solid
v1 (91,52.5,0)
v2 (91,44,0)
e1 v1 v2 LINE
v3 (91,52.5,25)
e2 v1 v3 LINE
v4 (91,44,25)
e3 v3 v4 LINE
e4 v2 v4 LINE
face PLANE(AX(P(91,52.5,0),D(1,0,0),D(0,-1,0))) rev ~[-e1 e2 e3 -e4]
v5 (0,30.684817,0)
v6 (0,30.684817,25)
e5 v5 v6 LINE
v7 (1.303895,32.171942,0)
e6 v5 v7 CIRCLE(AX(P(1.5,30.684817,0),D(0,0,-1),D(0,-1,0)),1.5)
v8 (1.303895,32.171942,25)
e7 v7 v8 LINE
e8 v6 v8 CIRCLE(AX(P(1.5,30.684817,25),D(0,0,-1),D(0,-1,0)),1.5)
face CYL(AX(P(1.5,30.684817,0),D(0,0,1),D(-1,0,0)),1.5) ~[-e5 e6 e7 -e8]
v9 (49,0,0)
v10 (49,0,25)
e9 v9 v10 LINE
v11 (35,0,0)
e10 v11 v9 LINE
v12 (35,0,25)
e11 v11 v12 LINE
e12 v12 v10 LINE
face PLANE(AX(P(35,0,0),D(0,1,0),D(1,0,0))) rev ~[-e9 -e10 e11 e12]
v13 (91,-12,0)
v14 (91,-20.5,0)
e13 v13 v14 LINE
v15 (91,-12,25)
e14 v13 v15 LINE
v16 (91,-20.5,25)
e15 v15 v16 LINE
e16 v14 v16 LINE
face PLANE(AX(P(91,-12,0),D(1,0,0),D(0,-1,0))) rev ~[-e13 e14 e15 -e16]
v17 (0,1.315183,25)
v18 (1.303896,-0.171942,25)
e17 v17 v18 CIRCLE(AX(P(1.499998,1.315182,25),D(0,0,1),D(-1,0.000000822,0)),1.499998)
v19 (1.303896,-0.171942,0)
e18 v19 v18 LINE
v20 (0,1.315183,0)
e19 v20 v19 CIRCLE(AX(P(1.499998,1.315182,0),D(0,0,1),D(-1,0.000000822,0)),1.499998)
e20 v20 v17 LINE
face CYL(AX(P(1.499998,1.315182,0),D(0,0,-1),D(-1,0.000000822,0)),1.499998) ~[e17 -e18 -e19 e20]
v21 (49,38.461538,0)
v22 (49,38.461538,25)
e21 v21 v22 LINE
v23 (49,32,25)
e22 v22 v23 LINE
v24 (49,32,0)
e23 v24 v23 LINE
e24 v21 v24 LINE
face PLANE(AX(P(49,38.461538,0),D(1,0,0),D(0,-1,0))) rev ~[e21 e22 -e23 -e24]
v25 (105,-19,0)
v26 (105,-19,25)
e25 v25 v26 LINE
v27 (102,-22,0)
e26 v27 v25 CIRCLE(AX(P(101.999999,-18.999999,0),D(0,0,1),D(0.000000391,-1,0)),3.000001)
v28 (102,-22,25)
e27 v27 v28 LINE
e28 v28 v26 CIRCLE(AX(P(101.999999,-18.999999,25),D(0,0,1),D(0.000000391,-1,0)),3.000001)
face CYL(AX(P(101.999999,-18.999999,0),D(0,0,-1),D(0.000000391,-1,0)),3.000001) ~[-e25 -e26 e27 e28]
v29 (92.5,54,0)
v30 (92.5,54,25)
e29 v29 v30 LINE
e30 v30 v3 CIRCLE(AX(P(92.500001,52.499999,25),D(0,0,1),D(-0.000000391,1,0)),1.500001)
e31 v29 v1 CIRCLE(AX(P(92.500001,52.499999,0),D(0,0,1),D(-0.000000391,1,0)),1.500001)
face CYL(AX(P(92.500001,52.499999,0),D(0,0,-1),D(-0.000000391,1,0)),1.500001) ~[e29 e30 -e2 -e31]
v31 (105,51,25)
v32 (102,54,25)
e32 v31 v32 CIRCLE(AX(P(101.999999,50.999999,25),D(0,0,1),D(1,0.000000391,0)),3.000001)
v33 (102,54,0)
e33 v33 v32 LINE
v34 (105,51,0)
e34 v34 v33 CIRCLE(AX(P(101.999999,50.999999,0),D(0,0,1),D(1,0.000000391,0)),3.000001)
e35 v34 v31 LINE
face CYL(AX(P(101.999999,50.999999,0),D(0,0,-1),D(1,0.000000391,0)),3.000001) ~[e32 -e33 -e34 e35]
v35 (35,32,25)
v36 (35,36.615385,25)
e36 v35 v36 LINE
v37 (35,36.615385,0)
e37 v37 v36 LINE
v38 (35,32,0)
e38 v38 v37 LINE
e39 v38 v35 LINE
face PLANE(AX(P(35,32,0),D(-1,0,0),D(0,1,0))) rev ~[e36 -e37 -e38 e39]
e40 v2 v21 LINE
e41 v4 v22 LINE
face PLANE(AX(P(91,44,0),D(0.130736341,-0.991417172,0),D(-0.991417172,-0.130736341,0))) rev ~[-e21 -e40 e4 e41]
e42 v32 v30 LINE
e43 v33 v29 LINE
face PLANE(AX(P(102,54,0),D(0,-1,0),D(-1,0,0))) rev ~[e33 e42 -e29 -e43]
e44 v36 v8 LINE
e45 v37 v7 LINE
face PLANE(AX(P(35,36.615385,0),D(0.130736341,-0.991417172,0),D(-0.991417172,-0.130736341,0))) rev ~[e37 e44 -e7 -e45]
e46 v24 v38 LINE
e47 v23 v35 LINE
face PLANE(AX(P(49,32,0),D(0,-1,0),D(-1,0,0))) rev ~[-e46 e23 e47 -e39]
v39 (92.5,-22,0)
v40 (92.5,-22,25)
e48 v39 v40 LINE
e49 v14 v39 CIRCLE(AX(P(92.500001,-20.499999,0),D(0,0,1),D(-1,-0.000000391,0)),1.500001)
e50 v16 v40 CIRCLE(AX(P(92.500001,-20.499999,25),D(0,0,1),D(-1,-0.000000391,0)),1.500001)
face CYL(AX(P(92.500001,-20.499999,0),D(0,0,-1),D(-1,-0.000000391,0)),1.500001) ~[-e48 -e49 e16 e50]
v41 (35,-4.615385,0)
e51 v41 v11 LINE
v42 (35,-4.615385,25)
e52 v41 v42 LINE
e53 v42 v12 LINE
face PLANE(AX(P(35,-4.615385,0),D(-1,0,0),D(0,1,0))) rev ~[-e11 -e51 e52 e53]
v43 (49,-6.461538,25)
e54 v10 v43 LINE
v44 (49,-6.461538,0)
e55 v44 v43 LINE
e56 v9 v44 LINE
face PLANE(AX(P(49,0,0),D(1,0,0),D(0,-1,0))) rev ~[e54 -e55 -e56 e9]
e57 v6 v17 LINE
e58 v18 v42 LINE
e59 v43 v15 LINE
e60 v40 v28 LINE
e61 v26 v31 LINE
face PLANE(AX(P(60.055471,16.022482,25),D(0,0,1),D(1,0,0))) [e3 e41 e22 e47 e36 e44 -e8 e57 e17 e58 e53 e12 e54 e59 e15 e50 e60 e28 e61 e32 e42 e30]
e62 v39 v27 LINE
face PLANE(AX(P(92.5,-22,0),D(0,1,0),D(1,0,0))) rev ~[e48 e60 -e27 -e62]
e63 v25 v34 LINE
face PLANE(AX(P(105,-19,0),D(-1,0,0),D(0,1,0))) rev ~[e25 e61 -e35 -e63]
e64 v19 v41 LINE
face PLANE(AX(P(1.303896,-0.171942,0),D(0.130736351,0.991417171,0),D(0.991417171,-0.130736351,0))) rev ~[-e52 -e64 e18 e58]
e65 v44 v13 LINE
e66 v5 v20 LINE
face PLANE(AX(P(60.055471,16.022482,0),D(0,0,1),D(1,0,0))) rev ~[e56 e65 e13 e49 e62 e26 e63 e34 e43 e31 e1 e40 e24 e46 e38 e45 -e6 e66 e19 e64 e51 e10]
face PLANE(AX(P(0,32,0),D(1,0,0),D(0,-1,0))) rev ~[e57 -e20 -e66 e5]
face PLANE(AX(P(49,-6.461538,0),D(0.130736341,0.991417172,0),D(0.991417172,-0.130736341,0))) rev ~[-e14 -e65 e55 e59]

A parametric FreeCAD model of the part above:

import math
import FreeCAD as App
import Part
import Sketcher
Q = App.Units.Quantity


def edges_at(feature, points):
    """Names of the edges that pass closest to the given points."""
    edges = feature.Shape.Edges
    near = lambda p: min(range(len(edges)), key=lambda i: edges[i].distToShape(Part.Vertex(*p))[0])
    return sorted({f"Edge{near(p) + 1}" for p in points})

doc = App.newDocument("Part")
body = doc.addObject("PartDesign::Body", "Body")

sketch1 = body.newObject("Sketcher::SketchObject", "Sketch")
sketch1.AttachmentSupport = (doc.getObject("XY_Plane"), [""])
sketch1.MapMode = "FlatFace"
sketch1.addGeometry(Part.LineSegment(App.Vector(0, 32, 0), App.Vector(0, 1.3, 0)), False)
sketch1.addGeometry(Part.ArcOfCircle(Part.Circle(App.Vector(1.5, 1.3, 0), App.Vector(0, 0, 1), 1.5), math.radians(180), math.radians(262)), False)
sketch1.addGeometry(Part.LineSegment(App.Vector(1.3, -0.2, 0), App.Vector(35, -4.6, 0)), False)
sketch1.addGeometry(Part.LineSegment(App.Vector(35, -4.6, 0), App.Vector(35, 0, 0)), False)
sketch1.addGeometry(Part.LineSegment(App.Vector(35, 0, 0), App.Vector(49, 0, 0)), False)
sketch1.addGeometry(Part.LineSegment(App.Vector(49, 0, 0), App.Vector(49, -6.5, 0)), False)
sketch1.addGeometry(Part.LineSegment(App.Vector(49, -6.5, 0), App.Vector(91, -12, 0)), False)
sketch1.addGeometry(Part.LineSegment(App.Vector(91, -12, 0), App.Vector(91, -20.5, 0)), False)
sketch1.addGeometry(Part.ArcOfCircle(Part.Circle(App.Vector(92.5, -20.5, 0), App.Vector(0, 0, 1), 1.5), math.radians(-180), math.radians(-90)), False)
sketch1.addGeometry(Part.LineSegment(App.Vector(92.5, -22, 0), App.Vector(102, -22, 0)), False)
sketch1.addGeometry(Part.ArcOfCircle(Part.Circle(App.Vector(102, -19, 0), App.Vector(0, 0, 1), 3), math.radians(-90), math.radians(0)), False)
sketch1.addGeometry(Part.LineSegment(App.Vector(105, -19, 0), App.Vector(105, 51, 0)), False)
sketch1.addGeometry(Part.ArcOfCircle(Part.Circle(App.Vector(102, 51, 0), App.Vector(0, 0, 1), 3), math.radians(0), math.radians(90)), False)
sketch1.addGeometry(Part.LineSegment(App.Vector(102, 54, 0), App.Vector(92.5, 54, 0)), False)
sketch1.addGeometry(Part.ArcOfCircle(Part.Circle(App.Vector(92.5, 52.5, 0), App.Vector(0, 0, 1), 1.5), math.radians(90), math.radians(180)), False)
sketch1.addGeometry(Part.LineSegment(App.Vector(91, 52.5, 0), App.Vector(91, 44, 0)), False)
sketch1.addGeometry(Part.LineSegment(App.Vector(91, 44, 0), App.Vector(49, 38.5, 0)), False)
sketch1.addGeometry(Part.LineSegment(App.Vector(49, 38.5, 0), App.Vector(49, 32, 0)), False)
sketch1.addGeometry(Part.LineSegment(App.Vector(49, 32, 0), App.Vector(35, 32, 0)), False)
sketch1.addGeometry(Part.LineSegment(App.Vector(35, 32, 0), App.Vector(35, 36.6, 0)), False)
sketch1.addGeometry(Part.LineSegment(App.Vector(35, 36.6, 0), App.Vector(0, 32, 0)), False)
sketch1.addConstraint(Sketcher.Constraint("Tangent", 0, 2, 1, 1))
sketch1.addConstraint(Sketcher.Constraint("Tangent", 1, 2, 2, 1))
sketch1.addConstraint(Sketcher.Constraint("Coincident", 2, 2, 3, 1))
sketch1.addConstraint(Sketcher.Constraint("Coincident", 3, 2, 4, 1))
sketch1.addConstraint(Sketcher.Constraint("Coincident", 4, 2, 5, 1))
sketch1.addConstraint(Sketcher.Constraint("Coincident", 5, 2, 6, 1))
sketch1.addConstraint(Sketcher.Constraint("Coincident", 6, 2, 7, 1))
sketch1.addConstraint(Sketcher.Constraint("Tangent", 7, 2, 8, 1))
sketch1.addConstraint(Sketcher.Constraint("Tangent", 8, 2, 9, 1))
sketch1.addConstraint(Sketcher.Constraint("Tangent", 9, 2, 10, 1))
sketch1.addConstraint(Sketcher.Constraint("Tangent", 10, 2, 11, 1))
sketch1.addConstraint(Sketcher.Constraint("Tangent", 11, 2, 12, 1))
sketch1.addConstraint(Sketcher.Constraint("Tangent", 12, 2, 13, 1))
sketch1.addConstraint(Sketcher.Constraint("Tangent", 13, 2, 14, 1))
sketch1.addConstraint(Sketcher.Constraint("Tangent", 14, 2, 15, 1))
sketch1.addConstraint(Sketcher.Constraint("Coincident", 15, 2, 16, 1))
sketch1.addConstraint(Sketcher.Constraint("Coincident", 16, 2, 17, 1))
sketch1.addConstraint(Sketcher.Constraint("Coincident", 17, 2, 18, 1))
sketch1.addConstraint(Sketcher.Constraint("Coincident", 18, 2, 19, 1))
sketch1.addConstraint(Sketcher.Constraint("Coincident", 19, 2, 20, 1))
sketch1.addConstraint(Sketcher.Constraint("Coincident", 20, 2, 0, 1))
sketch1.addConstraint(Sketcher.Constraint("Vertical", 0))
sketch1.addConstraint(Sketcher.Constraint("Vertical", 3))
sketch1.addConstraint(Sketcher.Constraint("Horizontal", 4))
sketch1.addConstraint(Sketcher.Constraint("Vertical", 5))
sketch1.addConstraint(Sketcher.Constraint("Vertical", 7))
sketch1.addConstraint(Sketcher.Constraint("Horizontal", 9))
sketch1.addConstraint(Sketcher.Constraint("Vertical", 11))
sketch1.addConstraint(Sketcher.Constraint("Horizontal", 13))
sketch1.addConstraint(Sketcher.Constraint("Vertical", 15))
sketch1.addConstraint(Sketcher.Constraint("Vertical", 17))
sketch1.addConstraint(Sketcher.Constraint("Horizontal", 18))
sketch1.addConstraint(Sketcher.Constraint("Vertical", 19))
sketch1.addConstraint(Sketcher.Constraint("Equal", 10, 12))
sketch1.addConstraint(Sketcher.Constraint("Equal", 8, 14))
sketch1.addConstraint(Sketcher.Constraint("PointOnObject", 0, 2, -2))
sketch1.addConstraint(Sketcher.Constraint("PointOnObject", 3, 2, -1))
sketch1.addConstraint(Sketcher.Constraint("Parallel", 2, 6))
sketch1.addConstraint(Sketcher.Constraint("Parallel", 16, 20))
sketch1.addConstraint(Sketcher.Constraint("Horizontal", 18, 2, 20, 2))
sketch1.addConstraint(Sketcher.Constraint("Vertical", 8, 3, 14, 3))
sketch1.addConstraint(Sketcher.Constraint("Vertical", 5, 2, 16, 2))
sketch1.addConstraint(Sketcher.Constraint("Vertical", 3, 2, 18, 2))
sketch1.addConstraint(Sketcher.Constraint("Equal", 7, 15))
sketch1.addConstraint(Sketcher.Constraint("Equal", 5, 17))
sketch1.addConstraint(Sketcher.Constraint("Equal", 3, 19))
sketch1.addConstraint(Sketcher.Constraint("Equal", 6, 16))
sketch1.addConstraint(Sketcher.Constraint("Radius", 10, Q("3.000001 mm")))
sketch1.addConstraint(Sketcher.Constraint("Radius", 8, Q("1.500001 mm")))
sketch1.addConstraint(Sketcher.Constraint("DistanceX", 4, 1, 4, 2, Q("14 mm")))
sketch1.addConstraint(Sketcher.Constraint("DistanceY", 11, 1, 11, 2, Q("70 mm")))
sketch1.addConstraint(Sketcher.Constraint("DistanceX", 9, 1, 9, 2, Q("9.5 mm")))
sketch1.addConstraint(Sketcher.Constraint("DistanceY", 7, 2, 7, 1, Q("8.5 mm")))
sketch1.addConstraint(Sketcher.Constraint("DistanceX", -1, 1, 10, 3, Q("101.999999 mm")))
sketch1.addConstraint(Sketcher.Constraint("DistanceY", 10, 3, -1, 1, Q("18.999999 mm")))
sketch1.addConstraint(Sketcher.Constraint("DistanceX", -1, 1, 2, 2, Q("35 mm")))
sketch1.addConstraint(Sketcher.Constraint("DistanceX", 1, 3, 10, 3, Q("100.500001 mm")))
sketch1.addConstraint(Sketcher.Constraint("Distance", 20, Q("35.303 mm")))
pad1 = body.newObject("PartDesign::Pad", "Pad")
pad1.Profile = sketch1
pad1.Length = 25
doc.recompute()

fillet = body.newObject("PartDesign::Fillet", "Fillet")
fillet.Base = (pad1, edges_at(pad1, [(0, 32, 12.5)]))
fillet.Radius = 1.5

doc.recompute()
